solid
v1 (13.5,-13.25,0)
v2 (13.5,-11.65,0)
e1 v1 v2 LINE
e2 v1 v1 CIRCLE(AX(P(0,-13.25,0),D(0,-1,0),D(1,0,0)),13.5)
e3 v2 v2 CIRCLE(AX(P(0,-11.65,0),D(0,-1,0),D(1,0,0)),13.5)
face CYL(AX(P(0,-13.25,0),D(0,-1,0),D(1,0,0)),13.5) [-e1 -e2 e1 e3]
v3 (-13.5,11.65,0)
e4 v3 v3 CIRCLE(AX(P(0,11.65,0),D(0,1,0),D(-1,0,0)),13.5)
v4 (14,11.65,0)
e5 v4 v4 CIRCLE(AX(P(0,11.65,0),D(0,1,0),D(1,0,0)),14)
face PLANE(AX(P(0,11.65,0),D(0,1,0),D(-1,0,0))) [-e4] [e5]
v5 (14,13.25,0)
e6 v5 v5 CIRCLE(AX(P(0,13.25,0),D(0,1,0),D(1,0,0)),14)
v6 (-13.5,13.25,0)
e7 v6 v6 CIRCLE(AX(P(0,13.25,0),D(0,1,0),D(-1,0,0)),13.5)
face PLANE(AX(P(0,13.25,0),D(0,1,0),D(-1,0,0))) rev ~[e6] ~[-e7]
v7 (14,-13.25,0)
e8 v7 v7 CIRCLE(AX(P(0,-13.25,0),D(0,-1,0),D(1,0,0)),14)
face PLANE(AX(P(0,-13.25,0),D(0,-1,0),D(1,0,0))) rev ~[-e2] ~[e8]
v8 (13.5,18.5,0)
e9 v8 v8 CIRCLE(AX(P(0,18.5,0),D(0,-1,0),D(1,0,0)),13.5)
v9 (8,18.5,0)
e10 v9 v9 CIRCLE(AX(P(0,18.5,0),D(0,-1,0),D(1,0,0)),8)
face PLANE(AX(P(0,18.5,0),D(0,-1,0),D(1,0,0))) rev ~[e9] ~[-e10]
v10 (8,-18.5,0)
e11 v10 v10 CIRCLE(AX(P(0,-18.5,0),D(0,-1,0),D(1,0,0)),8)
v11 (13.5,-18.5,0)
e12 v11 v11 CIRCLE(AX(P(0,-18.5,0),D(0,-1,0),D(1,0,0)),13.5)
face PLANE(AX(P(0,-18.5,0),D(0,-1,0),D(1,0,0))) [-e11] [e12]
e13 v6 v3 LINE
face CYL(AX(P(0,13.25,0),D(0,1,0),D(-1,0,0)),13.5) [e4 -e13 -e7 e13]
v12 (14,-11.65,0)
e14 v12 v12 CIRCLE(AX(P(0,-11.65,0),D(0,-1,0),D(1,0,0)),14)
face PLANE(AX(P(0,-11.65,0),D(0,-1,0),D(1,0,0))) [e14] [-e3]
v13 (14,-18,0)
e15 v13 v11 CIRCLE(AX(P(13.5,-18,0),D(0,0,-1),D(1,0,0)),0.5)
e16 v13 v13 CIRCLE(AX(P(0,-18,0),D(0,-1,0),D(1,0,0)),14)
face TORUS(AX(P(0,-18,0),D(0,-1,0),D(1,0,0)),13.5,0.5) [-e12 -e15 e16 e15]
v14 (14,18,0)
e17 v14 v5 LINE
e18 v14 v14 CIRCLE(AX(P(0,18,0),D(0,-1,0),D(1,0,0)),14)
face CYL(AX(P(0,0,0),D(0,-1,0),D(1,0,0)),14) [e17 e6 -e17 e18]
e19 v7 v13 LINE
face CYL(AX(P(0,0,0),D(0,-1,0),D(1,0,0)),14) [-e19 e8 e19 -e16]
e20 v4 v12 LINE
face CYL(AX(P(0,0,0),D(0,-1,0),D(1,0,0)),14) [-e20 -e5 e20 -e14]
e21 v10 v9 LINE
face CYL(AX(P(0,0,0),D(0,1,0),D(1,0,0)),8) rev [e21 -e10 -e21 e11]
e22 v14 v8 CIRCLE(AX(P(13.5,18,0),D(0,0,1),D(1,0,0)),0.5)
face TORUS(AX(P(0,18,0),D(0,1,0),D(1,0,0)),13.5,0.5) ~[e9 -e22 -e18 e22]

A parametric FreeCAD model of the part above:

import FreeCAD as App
import Part
import Sketcher

V = App.Vector


def edges_at(feature, points):
    """Names of the edges that pass closest to the given points."""
    edges = feature.Shape.Edges
    near = lambda p: min(range(len(edges)), key=lambda i: edges[i].distToShape(Part.Vertex(*p))[0])
    return sorted({f"Edge{near(p) + 1}" for p in points})

doc = App.newDocument("Part")
params = doc.addObject("Spreadsheet::Sheet", "Params")
for row, (alias, value) in enumerate([
    ("sketch1_diameter", "28 mm"),
    ("sketch1_diameter2", "16 mm"),
    ("pad1_length", "37 mm"),
    ("sketch2_diameter", "27 mm"),
    ("pocket1_length", "1.6 mm"),
    ("sketch3_diameter", "28 mm"),
    ("sketch3_diameter2", "27 mm"),
    ("pocket2_length", "1.6 mm"),
    ("fillet_radius", "0.5 mm"),
], start=1):
    params.set(f"A{row}", alias)
    params.set(f"B{row}", "=" + value)
    params.setAlias(f"B{row}", alias)

body = doc.addObject("PartDesign::Body", "Body")

# Sketch on XZ plane
sketch1 = body.newObject("Sketcher::SketchObject", "Sketch")
sketch1.AttachmentSupport = (doc.getObject("XZ_Plane"), [""])
sketch1.MapMode = "FlatFace"
sketch1.addGeometry([
    Part.Circle(V(0, 0, 0), V(0, 0, 1), 14),
    Part.Circle(V(0, 0, 0), V(0, 0, 1), 8),
], False)
sketch1.addConstraint([
    Sketcher.Constraint("Coincident", 0, 3, -1, 1),
    Sketcher.Constraint("Coincident", 1, 3, -1, 1),
    Sketcher.Constraint("Diameter", 0, 28.0),
    Sketcher.Constraint("Diameter", 1, 16.0),
])
sketch1.setExpression("Constraints[2]", "Params.sketch1_diameter")
sketch1.setExpression("Constraints[3]", "Params.sketch1_diameter2")
pad1 = body.newObject("PartDesign::Pad", "Pad")
pad1.Profile = sketch1
pad1.setExpression("Length", "Params.pad1_length")
pad1.Midplane = True

# Sketch on XZ plane
sketch2 = body.newObject("Sketcher::SketchObject", "Sketch001")
sketch2.AttachmentSupport = (doc.getObject("XZ_Plane"), [""])
sketch2.MapMode = "FlatFace"
sketch2.AttachmentOffset = App.Placement(V(0, 0, 13.25), App.Rotation())
sketch2.addGeometry([
    Part.Circle(V(0, 0, 0), V(0, 0, 1), 16.723628),
    Part.Circle(V(0, 0, 0), V(0, 0, 1), 13.5),
], False)
sketch2.addConstraint([
    Sketcher.Constraint("Coincident", 0, 3, -1, 1),
    Sketcher.Constraint("Coincident", 1, 3, -1, 1),
    Sketcher.Constraint("Diameter", 1, 27.0),
    Sketcher.Constraint("Diameter", 0, 33.447256),
])
sketch2.setExpression("Constraints[2]", "Params.sketch2_diameter")
pocket1 = body.newObject("PartDesign::Pocket", "Pocket")
pocket1.Profile = sketch2
pocket1.setExpression("Length", "Params.pocket1_length")

# Sketch on XZ plane
sketch3 = body.newObject("Sketcher::SketchObject", "Sketch002")
sketch3.AttachmentSupport = (doc.getObject("XZ_Plane"), [""])
sketch3.MapMode = "FlatFace"
sketch3.AttachmentOffset = App.Placement(V(0, 0, -13.25), App.Rotation())
sketch3.addGeometry([
    Part.Circle(V(0, 0, 0), V(0, 0, 1), 14),
    Part.Circle(V(0, 0, 0), V(0, 0, 1), 13.5),
], False)
sketch3.addConstraint([
    Sketcher.Constraint("Coincident", 0, 3, -1, 1),
    Sketcher.Constraint("Coincident", 1, 3, -1, 1),
    Sketcher.Constraint("Diameter", 0, 28.0),
    Sketcher.Constraint("Diameter", 1, 27.0),
])
sketch3.setExpression("Constraints[2]", "Params.sketch3_diameter")
sketch3.setExpression("Constraints[3]", "Params.sketch3_diameter2")
pocket2 = body.newObject("PartDesign::Pocket", "Pocket001")
pocket2.Profile = sketch3
pocket2.setExpression("Length", "Params.pocket2_length")
pocket2.Reversed = True
doc.recompute()

fillet = body.newObject("PartDesign::Fillet", "Fillet")
fillet.Base = (pocket2, edges_at(pocket2, [(-14, 18.5, 0), (-14, -18.5, 0)]))
fillet.setExpression("Radius", "Params.fillet_radius")

doc.recompute()
